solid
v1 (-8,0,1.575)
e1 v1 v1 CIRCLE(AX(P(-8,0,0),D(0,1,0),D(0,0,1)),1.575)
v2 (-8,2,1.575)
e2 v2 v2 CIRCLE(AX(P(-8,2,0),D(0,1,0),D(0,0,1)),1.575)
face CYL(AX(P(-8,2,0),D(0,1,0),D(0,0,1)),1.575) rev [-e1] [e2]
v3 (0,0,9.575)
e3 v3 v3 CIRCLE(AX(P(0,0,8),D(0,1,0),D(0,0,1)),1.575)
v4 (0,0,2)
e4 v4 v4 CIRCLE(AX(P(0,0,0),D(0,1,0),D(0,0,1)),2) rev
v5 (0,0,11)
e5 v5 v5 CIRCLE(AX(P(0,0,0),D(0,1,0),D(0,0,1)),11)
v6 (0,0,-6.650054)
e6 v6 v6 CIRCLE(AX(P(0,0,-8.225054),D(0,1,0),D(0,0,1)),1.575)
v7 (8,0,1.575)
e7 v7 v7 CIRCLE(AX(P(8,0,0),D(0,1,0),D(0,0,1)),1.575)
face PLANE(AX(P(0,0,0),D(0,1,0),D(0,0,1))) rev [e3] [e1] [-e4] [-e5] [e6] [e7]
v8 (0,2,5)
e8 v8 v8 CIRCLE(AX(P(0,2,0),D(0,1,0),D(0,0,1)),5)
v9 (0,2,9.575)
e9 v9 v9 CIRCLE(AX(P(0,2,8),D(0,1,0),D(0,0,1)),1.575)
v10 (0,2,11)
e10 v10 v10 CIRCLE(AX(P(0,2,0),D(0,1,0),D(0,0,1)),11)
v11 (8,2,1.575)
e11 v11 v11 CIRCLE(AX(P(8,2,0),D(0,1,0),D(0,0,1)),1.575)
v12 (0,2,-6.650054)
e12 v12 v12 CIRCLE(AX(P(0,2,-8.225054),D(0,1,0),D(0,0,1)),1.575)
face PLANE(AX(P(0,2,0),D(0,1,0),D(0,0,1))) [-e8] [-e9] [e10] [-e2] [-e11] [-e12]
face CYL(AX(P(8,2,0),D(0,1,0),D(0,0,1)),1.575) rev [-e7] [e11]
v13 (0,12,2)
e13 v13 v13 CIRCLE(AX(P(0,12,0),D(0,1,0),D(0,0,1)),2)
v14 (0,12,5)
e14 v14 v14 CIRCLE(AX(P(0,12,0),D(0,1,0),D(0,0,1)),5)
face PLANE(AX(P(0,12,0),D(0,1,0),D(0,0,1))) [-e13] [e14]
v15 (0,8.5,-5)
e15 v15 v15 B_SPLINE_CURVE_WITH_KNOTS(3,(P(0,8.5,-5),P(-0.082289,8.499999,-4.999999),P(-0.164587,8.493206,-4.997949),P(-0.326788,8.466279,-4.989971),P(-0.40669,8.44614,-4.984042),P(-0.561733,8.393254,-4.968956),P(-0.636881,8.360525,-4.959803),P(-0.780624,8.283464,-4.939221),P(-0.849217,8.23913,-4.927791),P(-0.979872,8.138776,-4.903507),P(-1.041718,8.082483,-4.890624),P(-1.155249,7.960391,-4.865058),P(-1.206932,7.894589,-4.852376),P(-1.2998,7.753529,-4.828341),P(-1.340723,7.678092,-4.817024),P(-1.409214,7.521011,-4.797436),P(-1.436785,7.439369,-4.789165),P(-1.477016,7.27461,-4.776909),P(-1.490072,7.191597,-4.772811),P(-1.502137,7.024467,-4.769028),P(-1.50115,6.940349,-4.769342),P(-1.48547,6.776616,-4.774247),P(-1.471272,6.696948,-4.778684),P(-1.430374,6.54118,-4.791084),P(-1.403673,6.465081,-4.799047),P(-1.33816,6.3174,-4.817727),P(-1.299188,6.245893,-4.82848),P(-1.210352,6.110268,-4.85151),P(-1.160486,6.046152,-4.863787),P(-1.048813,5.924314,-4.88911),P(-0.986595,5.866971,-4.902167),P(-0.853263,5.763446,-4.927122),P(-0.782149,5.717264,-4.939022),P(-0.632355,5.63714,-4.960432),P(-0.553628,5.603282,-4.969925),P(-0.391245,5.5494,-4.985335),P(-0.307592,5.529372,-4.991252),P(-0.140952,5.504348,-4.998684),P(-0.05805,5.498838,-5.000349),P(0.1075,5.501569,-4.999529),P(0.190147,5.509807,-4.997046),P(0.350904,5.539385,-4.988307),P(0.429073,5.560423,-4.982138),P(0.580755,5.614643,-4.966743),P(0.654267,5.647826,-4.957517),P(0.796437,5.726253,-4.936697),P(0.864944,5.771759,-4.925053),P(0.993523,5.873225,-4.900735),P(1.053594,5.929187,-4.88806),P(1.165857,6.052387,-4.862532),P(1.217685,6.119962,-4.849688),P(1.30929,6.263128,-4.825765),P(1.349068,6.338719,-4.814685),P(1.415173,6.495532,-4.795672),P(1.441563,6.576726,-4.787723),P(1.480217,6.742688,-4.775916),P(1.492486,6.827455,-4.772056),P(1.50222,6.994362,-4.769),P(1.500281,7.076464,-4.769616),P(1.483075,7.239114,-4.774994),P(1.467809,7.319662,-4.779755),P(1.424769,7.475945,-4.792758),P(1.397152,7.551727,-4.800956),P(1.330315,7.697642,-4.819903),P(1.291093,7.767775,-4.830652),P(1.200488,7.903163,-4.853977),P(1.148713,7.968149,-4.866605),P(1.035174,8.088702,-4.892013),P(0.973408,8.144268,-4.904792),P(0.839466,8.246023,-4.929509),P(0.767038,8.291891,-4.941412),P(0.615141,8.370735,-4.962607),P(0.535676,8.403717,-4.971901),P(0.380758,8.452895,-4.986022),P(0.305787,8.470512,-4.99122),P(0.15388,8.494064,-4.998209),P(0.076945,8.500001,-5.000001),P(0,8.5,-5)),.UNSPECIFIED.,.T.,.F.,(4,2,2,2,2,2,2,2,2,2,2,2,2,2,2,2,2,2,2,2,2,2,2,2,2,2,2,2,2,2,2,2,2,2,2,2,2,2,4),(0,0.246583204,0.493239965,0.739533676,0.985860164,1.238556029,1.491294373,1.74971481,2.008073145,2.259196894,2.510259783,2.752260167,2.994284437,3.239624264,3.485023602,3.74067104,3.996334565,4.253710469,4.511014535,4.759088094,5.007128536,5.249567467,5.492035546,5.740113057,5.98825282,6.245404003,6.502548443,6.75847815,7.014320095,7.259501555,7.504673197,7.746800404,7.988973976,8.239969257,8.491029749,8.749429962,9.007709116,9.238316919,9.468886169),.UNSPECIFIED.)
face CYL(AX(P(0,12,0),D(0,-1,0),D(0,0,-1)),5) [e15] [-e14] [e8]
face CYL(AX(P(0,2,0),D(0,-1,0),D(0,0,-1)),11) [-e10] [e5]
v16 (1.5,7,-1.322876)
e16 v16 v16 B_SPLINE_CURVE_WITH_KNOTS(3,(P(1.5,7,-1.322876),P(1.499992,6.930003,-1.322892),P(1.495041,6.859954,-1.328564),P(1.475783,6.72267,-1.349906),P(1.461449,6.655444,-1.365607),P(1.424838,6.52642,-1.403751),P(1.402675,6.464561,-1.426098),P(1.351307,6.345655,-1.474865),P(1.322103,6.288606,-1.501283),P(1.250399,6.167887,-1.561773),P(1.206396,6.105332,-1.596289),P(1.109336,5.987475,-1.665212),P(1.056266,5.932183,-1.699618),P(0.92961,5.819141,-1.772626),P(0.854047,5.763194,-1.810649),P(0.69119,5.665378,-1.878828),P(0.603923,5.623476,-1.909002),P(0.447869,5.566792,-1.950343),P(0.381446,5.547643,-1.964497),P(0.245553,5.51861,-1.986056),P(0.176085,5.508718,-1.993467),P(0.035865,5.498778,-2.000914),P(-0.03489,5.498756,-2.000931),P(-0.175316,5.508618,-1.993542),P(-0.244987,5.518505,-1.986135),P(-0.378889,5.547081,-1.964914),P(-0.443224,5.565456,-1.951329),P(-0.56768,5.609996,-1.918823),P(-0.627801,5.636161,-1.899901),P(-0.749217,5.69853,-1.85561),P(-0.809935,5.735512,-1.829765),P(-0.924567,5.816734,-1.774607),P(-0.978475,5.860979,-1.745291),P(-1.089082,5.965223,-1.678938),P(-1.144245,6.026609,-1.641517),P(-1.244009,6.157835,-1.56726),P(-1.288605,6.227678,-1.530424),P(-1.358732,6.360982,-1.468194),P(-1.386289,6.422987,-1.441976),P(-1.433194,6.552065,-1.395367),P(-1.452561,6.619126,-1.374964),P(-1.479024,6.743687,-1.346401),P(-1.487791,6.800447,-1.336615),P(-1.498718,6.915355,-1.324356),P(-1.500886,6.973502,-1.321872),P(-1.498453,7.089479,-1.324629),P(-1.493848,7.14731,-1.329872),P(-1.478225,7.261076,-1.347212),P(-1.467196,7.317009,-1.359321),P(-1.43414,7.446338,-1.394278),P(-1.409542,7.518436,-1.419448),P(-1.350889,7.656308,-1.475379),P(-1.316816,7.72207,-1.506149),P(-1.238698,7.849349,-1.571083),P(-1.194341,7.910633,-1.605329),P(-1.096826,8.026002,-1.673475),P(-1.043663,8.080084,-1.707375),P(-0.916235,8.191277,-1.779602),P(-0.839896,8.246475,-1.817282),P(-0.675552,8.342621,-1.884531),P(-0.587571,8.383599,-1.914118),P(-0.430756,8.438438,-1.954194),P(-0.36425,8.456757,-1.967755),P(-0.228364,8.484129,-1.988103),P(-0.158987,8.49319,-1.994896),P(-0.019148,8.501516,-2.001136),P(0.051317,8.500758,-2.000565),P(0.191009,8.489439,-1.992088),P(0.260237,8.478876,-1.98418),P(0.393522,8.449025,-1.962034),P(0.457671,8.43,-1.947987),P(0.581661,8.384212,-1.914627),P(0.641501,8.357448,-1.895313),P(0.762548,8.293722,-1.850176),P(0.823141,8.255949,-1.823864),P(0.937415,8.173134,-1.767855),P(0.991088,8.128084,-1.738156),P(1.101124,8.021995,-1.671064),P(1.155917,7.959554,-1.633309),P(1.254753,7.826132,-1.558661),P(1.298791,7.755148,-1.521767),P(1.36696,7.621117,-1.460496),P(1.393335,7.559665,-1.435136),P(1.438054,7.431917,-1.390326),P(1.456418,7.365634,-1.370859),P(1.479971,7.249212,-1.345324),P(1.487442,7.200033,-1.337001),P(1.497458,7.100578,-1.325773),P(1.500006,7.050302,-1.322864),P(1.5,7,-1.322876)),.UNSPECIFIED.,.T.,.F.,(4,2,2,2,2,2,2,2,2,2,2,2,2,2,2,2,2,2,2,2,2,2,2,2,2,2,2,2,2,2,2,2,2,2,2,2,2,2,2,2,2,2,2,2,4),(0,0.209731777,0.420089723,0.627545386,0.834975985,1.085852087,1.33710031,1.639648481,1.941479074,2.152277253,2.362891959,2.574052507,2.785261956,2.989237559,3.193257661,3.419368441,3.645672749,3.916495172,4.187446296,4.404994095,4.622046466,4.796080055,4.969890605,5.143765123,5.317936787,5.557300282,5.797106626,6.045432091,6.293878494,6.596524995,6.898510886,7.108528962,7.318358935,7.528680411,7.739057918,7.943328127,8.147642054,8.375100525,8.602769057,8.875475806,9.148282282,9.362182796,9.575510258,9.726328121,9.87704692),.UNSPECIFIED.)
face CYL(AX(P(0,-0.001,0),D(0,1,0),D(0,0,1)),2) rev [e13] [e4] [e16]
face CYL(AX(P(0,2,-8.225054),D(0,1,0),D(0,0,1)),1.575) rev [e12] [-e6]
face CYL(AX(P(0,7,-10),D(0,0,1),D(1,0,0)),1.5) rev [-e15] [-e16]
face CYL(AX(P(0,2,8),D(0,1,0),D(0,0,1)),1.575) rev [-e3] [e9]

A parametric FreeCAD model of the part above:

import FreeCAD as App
import Part
import Sketcher

V = App.Vector

doc = App.newDocument("Part")
body = doc.addObject("PartDesign::Body", "Body")

sketch1 = doc.addObject("Sketcher::SketchObject", "Sketch")
body.addObject(sketch1)
sketch1.AttachmentSupport = (doc.XZ_Plane, [""])
sketch1.MapMode = "FlatFace"
sketch1.addGeometry(Part.Circle(V(0, 0, 0), V(0, 0, 1), 11), False)
sketch1.addConstraint([
    Sketcher.Constraint("Coincident", 0, 3, -1, 1),
    Sketcher.Constraint("Diameter", 0, 22.0),
])
pad1 = doc.addObject("PartDesign::Pad", "Pad")
body.addObject(pad1)
pad1.Profile = sketch1
pad1.Length = 2
pad1.Reversed = True

sketch2 = doc.addObject("Sketcher::SketchObject", "Sketch001")
body.addObject(sketch2)
sketch2.AttachmentSupport = (doc.XZ_Plane, [""])
sketch2.MapMode = "FlatFace"
sketch2.AttachmentOffset = App.Placement(V(0, 0, -2), App.Rotation())
sketch2.addGeometry(Part.Circle(V(0, 0, 0), V(0, 0, 1), 5), False)
sketch2.addConstraint([
    Sketcher.Constraint("Coincident", 0, 3, -1, 1),
    Sketcher.Constraint("Diameter", 0, 10.0),
])
pad2 = doc.addObject("PartDesign::Pad", "Pad001")
body.addObject(pad2)
pad2.Profile = sketch2
pad2.Length = 10
pad2.Reversed = True

sketch3 = doc.addObject("Sketcher::SketchObject", "Sketch002")
body.addObject(sketch3)
sketch3.AttachmentSupport = (doc.XZ_Plane, [""])
sketch3.MapMode = "FlatFace"
sketch3.AttachmentOffset = App.Placement(V(0, 0, -12), App.Rotation())
sketch3.addGeometry(Part.Circle(V(0, 0, 0), V(0, 0, 1), 2), False)
sketch3.addConstraint([
    Sketcher.Constraint("Coincident", 0, 3, -1, 1),
    Sketcher.Constraint("Diameter", 0, 4.0),
])
pocket1 = doc.addObject("PartDesign::Pocket", "Pocket")
body.addObject(pocket1)
pocket1.Profile = sketch3
pocket1.Type = "UpToFirst"
pocket1.Reversed = True

sketch4 = doc.addObject("Sketcher::SketchObject", "Sketch003")
body.addObject(sketch4)
sketch4.AttachmentSupport = (doc.XZ_Plane, [""])
sketch4.MapMode = "FlatFace"
sketch4.AttachmentOffset = App.Placement(V(0, 0, -2), App.Rotation())
sketch4.addGeometry([
    Part.Circle(V(0, 8, 0), V(0, 0, 1), 1.6),
    Part.Circle(V(-8, 0, 0), V(0, 0, 1), 1.6),
    Part.Circle(V(0, -8.2, 0), V(0, 0, 1), 1.6),
    Part.Circle(V(8, 0, 0), V(0, 0, 1), 1.6),
], False)
sketch4.addConstraint([
    Sketcher.Constraint("Equal", 0, 1),
    Sketcher.Constraint("Equal", 1, 2),
    Sketcher.Constraint("Equal", 2, 3),
    Sketcher.Constraint("Symmetric", 1, 3, 3, 3, -1, 1),
    Sketcher.Constraint("PointOnObject", 0, 3, -2),
    Sketcher.Constraint("PointOnObject", 1, 3, -1),
    Sketcher.Constraint("PointOnObject", 2, 3, -2),
    Sketcher.Constraint("Diameter", 0, 3.15),
    Sketcher.Constraint("DistanceY", -1, 1, 0, 3, 8.0),
    Sketcher.Constraint("DistanceX", 1, 3, -1, 1, 8.0),
    Sketcher.Constraint("DistanceY", 2, 3, -1, 1, 8.225054),
])
doc.recompute()
hole = doc.addObject("PartDesign::Hole", "Hole")
body.addObject(hole)
hole.Profile = sketch4
hole.ThreadType = "None"
hole.Diameter = 3.15
hole.DepthType = "Dimension"
hole.Depth = 8
hole.DrillPoint = "Angled"
hole.DrillPointAngle = 118
hole.Reversed = True

sketch5 = doc.addObject("Sketcher::SketchObject", "Sketch004")
body.addObject(sketch5)
sketch5.AttachmentSupport = (doc.XY_Plane, [""])
sketch5.MapMode = "FlatFace"
sketch5.addGeometry(Part.Circle(V(0, 7, 0), V(0, 0, 1), 1.5), False)
sketch5.addConstraint([
    Sketcher.Constraint("PointOnObject", 0, 3, -2),
    Sketcher.Constraint("Diameter", 0, 3.0),
    Sketcher.Constraint("DistanceY", -1, 1, 0, 3, 7.0),
])
pocket2 = doc.addObject("PartDesign::Pocket", "Pocket001")
body.addObject(pocket2)
pocket2.Profile = sketch5
pocket2.Length = 10

doc.recompute()
